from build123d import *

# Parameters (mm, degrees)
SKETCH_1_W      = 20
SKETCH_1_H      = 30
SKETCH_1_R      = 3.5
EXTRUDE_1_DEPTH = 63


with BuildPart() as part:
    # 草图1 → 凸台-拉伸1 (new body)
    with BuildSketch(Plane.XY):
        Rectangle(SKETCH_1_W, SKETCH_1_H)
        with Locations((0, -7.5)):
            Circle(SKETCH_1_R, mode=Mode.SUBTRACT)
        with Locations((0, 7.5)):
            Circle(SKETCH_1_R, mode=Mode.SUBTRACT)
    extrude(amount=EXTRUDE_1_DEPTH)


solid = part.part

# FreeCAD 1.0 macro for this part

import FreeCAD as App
import Part
import Sketcher
Q = App.Units.Quantity

doc = App.newDocument("Part")
body = doc.addObject("PartDesign::Body", "Body")

sketch1 = body.newObject("Sketcher::SketchObject", "Sketch")
sketch1.AttachmentSupport = (doc.getObject("XY_Plane"), [""])
sketch1.MapMode = "FlatFace"
sketch1.addGeometry(Part.LineSegment(App.Vector(-10, 15, 0), App.Vector(-10, -15, 0)), False)
sketch1.addGeometry(Part.LineSegment(App.Vector(-10, -15, 0), App.Vector(10, -15, 0)), False)
sketch1.addGeometry(Part.LineSegment(App.Vector(10, -15, 0), App.Vector(10, 15, 0)), False)
sketch1.addGeometry(Part.LineSegment(App.Vector(10, 15, 0), App.Vector(-10, 15, 0)), False)
sketch1.addGeometry(Part.Circle(App.Vector(0, -7.5, 0), App.Vector(0, 0, 1), 3.5), False)
sketch1.addGeometry(Part.Circle(App.Vector(0, 7.5, 0), App.Vector(0, 0, 1), 3.5), False)
sketch1.addConstraint(Sketcher.Constraint("Coincident", 0, 2, 1, 1))
sketch1.addConstraint(Sketcher.Constraint("Coincident", 1, 2, 2, 1))
sketch1.addConstraint(Sketcher.Constraint("Coincident", 2, 2, 3, 1))
sketch1.addConstraint(Sketcher.Constraint("Coincident", 3, 2, 0, 1))
sketch1.addConstraint(Sketcher.Constraint("Vertical", 0))
sketch1.addConstraint(Sketcher.Constraint("Horizontal", 1))
sketch1.addConstraint(Sketcher.Constraint("Vertical", 2))
sketch1.addConstraint(Sketcher.Constraint("Horizontal", 3))
sketch1.addConstraint(Sketcher.Constraint("Equal", 4, 5))
sketch1.addConstraint(Sketcher.Constraint("Symmetric", 4, 3, 5, 3, -1, 1))
sketch1.addConstraint(Sketcher.Constraint("Symmetric", 0, 2, 2, 2, -1, 1))
sketch1.addConstraint(Sketcher.Constraint("PointOnObject", 4, 3, -2))
sketch1.addConstraint(Sketcher.Constraint("Diameter", 4, Q("7 mm")))
sketch1.addConstraint(Sketcher.Constraint("DistanceX", 1, 1, 1, 2, Q("20 mm")))
sketch1.addConstraint(Sketcher.Constraint("DistanceY", 0, 2, 0, 1, Q("30 mm")))
sketch1.addConstraint(Sketcher.Constraint("DistanceY", 4, 3, 5, 3, Q("15 mm")))
pad1 = body.newObject("PartDesign::Pad", "Pad")
pad1.Profile = sketch1
pad1.Length = 63

doc.recompute()
